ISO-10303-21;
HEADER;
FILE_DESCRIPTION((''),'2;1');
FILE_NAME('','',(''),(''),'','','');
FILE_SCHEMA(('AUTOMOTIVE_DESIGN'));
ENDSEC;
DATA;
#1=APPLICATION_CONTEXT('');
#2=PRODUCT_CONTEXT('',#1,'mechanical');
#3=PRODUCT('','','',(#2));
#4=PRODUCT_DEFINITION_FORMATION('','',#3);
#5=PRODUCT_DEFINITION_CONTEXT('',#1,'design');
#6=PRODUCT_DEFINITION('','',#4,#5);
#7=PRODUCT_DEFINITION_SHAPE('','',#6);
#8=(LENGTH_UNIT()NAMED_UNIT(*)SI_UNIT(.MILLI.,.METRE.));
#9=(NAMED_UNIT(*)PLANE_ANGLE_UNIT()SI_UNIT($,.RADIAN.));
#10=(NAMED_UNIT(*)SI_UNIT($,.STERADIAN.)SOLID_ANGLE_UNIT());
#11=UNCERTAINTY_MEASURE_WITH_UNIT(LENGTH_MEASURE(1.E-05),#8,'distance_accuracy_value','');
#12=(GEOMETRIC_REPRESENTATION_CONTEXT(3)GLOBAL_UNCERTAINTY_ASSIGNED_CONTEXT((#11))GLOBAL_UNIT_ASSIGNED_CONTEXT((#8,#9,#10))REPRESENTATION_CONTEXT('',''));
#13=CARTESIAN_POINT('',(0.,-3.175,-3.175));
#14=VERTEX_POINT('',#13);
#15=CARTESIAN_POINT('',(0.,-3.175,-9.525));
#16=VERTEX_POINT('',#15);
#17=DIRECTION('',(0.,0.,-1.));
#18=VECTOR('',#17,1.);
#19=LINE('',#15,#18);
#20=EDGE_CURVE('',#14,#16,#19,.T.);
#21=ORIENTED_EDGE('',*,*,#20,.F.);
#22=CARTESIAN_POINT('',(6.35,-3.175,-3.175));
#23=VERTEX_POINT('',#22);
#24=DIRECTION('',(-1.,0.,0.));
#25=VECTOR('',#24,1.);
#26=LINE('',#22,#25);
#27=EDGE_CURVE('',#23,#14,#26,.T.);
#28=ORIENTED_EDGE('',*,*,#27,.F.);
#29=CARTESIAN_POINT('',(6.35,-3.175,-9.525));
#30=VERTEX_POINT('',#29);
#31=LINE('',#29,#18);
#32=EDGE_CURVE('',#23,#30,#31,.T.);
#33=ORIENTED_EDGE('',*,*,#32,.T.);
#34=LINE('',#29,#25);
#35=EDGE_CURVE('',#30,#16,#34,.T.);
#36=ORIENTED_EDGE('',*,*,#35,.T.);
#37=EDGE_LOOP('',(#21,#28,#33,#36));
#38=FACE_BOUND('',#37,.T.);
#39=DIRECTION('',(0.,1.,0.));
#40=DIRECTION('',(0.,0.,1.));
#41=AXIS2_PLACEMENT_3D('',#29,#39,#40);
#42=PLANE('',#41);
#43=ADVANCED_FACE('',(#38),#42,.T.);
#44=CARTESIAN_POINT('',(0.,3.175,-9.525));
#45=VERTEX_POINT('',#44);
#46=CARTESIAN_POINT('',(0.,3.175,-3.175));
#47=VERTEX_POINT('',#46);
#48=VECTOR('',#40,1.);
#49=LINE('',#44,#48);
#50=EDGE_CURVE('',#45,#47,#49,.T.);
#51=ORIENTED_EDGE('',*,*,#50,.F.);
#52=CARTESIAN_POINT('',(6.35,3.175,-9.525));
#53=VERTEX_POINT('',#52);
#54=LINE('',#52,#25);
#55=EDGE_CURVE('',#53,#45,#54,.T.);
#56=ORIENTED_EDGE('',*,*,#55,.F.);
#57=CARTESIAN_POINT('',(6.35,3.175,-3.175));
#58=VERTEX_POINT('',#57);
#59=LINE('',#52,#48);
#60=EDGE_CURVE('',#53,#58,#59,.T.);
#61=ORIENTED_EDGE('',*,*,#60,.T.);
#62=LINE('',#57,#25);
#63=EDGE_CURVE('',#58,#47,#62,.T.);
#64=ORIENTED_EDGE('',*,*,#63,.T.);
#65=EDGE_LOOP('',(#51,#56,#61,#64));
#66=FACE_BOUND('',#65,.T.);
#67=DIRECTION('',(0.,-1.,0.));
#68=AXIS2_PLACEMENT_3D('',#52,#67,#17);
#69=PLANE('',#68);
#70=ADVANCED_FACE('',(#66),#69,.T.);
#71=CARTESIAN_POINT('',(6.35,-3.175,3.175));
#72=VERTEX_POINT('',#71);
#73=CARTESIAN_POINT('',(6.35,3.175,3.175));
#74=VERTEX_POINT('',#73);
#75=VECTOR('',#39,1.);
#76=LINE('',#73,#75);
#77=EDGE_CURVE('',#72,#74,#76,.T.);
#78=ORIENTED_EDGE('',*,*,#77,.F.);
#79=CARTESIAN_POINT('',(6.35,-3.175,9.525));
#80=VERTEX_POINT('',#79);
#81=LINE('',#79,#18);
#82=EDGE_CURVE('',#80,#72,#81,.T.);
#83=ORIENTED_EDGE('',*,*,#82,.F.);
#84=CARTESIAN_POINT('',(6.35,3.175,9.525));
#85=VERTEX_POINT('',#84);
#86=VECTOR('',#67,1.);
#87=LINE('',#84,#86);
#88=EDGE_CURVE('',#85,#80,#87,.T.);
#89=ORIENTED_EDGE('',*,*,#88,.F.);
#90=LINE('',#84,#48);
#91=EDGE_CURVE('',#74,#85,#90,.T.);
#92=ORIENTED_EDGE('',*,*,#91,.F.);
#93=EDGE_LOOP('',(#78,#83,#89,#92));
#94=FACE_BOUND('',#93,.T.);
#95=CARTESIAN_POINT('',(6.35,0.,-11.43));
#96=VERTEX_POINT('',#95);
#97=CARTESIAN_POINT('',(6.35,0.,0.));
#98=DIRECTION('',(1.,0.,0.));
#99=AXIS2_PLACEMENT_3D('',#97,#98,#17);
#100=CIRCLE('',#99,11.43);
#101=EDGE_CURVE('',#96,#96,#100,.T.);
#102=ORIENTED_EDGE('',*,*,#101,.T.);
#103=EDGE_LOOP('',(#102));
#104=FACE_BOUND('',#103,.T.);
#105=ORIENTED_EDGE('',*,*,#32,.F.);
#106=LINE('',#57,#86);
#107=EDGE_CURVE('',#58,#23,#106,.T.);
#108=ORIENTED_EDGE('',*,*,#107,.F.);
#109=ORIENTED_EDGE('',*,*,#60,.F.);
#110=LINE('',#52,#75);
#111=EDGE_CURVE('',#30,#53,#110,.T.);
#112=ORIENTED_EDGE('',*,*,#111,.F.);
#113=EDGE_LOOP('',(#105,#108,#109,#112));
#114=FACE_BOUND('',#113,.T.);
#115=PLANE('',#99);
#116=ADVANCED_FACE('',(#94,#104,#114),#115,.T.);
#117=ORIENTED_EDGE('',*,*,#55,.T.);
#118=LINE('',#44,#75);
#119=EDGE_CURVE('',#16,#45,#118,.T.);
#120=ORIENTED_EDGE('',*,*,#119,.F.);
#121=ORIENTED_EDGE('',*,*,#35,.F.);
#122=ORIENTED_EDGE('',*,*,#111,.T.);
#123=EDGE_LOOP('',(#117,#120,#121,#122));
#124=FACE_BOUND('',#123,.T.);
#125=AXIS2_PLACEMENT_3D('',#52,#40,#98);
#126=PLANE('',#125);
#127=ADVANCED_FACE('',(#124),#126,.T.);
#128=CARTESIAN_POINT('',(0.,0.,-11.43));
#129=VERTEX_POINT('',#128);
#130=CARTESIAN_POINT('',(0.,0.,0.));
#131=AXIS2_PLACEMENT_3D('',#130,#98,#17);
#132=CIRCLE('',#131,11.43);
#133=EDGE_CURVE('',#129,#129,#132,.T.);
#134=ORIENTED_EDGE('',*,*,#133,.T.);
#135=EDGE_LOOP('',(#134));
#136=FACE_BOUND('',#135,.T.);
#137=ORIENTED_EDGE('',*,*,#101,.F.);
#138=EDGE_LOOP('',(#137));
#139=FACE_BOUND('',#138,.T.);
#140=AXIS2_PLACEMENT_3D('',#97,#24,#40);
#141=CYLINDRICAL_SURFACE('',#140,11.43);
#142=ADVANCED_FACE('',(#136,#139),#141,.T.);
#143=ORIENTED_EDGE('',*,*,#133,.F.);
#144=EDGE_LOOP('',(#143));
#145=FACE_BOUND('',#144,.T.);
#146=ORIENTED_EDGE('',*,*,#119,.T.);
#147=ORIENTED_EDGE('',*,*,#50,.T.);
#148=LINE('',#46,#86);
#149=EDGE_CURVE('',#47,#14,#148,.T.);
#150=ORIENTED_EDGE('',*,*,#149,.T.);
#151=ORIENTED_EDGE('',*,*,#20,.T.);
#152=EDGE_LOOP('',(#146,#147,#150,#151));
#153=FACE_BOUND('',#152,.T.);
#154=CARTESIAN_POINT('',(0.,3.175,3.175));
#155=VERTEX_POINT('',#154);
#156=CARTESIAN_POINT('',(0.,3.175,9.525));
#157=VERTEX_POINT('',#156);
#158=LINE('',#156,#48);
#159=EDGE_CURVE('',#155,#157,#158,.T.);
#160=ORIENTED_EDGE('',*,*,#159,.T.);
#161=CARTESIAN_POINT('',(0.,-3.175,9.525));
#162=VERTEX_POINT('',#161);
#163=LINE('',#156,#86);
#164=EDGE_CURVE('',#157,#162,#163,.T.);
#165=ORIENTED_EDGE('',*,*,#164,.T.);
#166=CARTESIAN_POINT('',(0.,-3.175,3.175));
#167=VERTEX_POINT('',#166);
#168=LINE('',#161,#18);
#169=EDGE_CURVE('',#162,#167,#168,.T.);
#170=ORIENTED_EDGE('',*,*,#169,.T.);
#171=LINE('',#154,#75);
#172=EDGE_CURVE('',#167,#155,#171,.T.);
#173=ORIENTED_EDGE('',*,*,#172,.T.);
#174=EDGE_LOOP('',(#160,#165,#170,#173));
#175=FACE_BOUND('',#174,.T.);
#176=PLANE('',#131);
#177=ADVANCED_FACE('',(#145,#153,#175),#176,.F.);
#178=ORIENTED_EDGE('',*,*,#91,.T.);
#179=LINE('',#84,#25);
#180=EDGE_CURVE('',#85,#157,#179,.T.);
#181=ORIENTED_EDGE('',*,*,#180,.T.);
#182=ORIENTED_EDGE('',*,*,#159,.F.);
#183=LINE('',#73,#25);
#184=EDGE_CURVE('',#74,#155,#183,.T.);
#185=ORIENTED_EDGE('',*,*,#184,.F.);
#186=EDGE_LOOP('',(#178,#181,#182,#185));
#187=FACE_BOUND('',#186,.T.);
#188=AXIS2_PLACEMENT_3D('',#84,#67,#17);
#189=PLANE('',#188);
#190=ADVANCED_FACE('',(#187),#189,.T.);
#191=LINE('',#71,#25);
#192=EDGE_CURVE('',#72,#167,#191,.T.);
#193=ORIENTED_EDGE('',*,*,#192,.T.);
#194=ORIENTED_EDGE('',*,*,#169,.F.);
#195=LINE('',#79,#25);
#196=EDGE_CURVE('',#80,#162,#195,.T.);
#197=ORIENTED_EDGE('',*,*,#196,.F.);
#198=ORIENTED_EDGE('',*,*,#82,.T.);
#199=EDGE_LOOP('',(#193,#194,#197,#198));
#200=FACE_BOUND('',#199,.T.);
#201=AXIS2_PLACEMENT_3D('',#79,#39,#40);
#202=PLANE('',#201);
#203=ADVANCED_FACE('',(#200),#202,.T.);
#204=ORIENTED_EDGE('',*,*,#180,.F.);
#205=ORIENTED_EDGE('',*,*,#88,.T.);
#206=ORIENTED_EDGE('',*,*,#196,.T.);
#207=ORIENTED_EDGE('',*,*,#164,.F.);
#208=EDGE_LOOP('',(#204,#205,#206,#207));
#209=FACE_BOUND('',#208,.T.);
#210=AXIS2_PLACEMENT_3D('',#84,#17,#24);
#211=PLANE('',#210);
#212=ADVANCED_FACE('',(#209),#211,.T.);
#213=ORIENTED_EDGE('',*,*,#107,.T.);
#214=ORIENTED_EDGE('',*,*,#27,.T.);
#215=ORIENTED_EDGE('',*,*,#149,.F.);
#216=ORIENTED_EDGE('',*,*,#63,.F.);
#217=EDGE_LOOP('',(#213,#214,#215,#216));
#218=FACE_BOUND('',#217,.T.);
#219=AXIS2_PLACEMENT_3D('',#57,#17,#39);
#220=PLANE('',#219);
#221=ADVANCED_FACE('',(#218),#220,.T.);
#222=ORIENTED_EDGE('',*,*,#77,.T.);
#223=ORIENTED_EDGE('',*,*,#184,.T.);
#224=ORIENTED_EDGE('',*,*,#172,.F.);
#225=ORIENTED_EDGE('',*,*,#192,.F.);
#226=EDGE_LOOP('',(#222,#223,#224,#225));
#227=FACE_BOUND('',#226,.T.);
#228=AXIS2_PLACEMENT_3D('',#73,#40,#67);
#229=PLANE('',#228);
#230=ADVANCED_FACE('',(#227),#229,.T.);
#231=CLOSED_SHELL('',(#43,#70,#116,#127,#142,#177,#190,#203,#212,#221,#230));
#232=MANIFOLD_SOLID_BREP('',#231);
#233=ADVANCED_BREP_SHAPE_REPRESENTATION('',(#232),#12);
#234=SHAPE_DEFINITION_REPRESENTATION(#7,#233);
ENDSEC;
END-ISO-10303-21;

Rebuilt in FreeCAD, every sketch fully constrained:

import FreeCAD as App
import Part
import Sketcher
from FreeCAD import Vector
Q = App.Units.Quantity

doc = App.newDocument("Part")
body = doc.addObject("PartDesign::Body", "Body")

# Sketch on YZ plane
sketch1 = doc.addObject("Sketcher::SketchObject", "Sketch")
body.addObject(sketch1)
sketch1.AttachmentSupport = (doc.YZ_Plane, [""])
sketch1.MapMode = "FlatFace"
sketch1.addGeometry([
    Part.Circle(Vector(0, 0, 0), Vector(0, 0, 1), 11),  # 0
    Part.LineSegment(Vector(-3, 3, 0), Vector(-3, 10, 0)),  # 1
    Part.LineSegment(Vector(-3, 10, 0), Vector(3, 10, 0)),  # 2
    Part.LineSegment(Vector(3, 10, 0), Vector(3, 3, 0)),  # 3
    Part.LineSegment(Vector(3, 3, 0), Vector(-3, 3, 0)),  # 4
    Part.LineSegment(Vector(-3, -10, 0), Vector(-3, -3, 0)),  # 5
    Part.LineSegment(Vector(-3, -3, 0), Vector(3, -3, 0)),  # 6
    Part.LineSegment(Vector(3, -3, 0), Vector(3, -10, 0)),  # 7
    Part.LineSegment(Vector(3, -10, 0), Vector(-3, -10, 0)),  # 8
], False)
sketch1.addConstraint([
    Sketcher.Constraint("Coincident", 1, 2, 2, 1),
    Sketcher.Constraint("Coincident", 2, 2, 3, 1),
    Sketcher.Constraint("Coincident", 3, 2, 4, 1),
    Sketcher.Constraint("Coincident", 4, 2, 1, 1),
    Sketcher.Constraint("Coincident", 5, 2, 6, 1),
    Sketcher.Constraint("Coincident", 6, 2, 7, 1),
    Sketcher.Constraint("Coincident", 7, 2, 8, 1),
    Sketcher.Constraint("Coincident", 8, 2, 5, 1),
    Sketcher.Constraint("Vertical", 1),
    Sketcher.Constraint("Horizontal", 2),
    Sketcher.Constraint("Vertical", 3),
    Sketcher.Constraint("Horizontal", 4),
    Sketcher.Constraint("Vertical", 5),
    Sketcher.Constraint("Horizontal", 6),
    Sketcher.Constraint("Vertical", 7),
    Sketcher.Constraint("Horizontal", 8),
    Sketcher.Constraint("Coincident", 0, 3, -1, 1),
    Sketcher.Constraint("Symmetric", 3, 2, 5, 2, -1, 1),
    Sketcher.Constraint("Symmetric", 1, 2, 7, 2, -1, 1),
    Sketcher.Constraint("Vertical", 4, 2, 5, 2),
    Sketcher.Constraint("Equal", 8, 1),
    Sketcher.Constraint("Diameter", 0, Q("0.9 in")),
    Sketcher.Constraint("DistanceX", 2, 1, 2, 2, Q("0.25 in")),
    Sketcher.Constraint("DistanceY", 5, 2, 1, 2, Q("0.5 in")),
])
pad1 = doc.addObject("PartDesign::Pad", "Pad")
body.addObject(pad1)
pad1.Profile = sketch1
pad1.Length = Q("0.25 in")

doc.recompute()
